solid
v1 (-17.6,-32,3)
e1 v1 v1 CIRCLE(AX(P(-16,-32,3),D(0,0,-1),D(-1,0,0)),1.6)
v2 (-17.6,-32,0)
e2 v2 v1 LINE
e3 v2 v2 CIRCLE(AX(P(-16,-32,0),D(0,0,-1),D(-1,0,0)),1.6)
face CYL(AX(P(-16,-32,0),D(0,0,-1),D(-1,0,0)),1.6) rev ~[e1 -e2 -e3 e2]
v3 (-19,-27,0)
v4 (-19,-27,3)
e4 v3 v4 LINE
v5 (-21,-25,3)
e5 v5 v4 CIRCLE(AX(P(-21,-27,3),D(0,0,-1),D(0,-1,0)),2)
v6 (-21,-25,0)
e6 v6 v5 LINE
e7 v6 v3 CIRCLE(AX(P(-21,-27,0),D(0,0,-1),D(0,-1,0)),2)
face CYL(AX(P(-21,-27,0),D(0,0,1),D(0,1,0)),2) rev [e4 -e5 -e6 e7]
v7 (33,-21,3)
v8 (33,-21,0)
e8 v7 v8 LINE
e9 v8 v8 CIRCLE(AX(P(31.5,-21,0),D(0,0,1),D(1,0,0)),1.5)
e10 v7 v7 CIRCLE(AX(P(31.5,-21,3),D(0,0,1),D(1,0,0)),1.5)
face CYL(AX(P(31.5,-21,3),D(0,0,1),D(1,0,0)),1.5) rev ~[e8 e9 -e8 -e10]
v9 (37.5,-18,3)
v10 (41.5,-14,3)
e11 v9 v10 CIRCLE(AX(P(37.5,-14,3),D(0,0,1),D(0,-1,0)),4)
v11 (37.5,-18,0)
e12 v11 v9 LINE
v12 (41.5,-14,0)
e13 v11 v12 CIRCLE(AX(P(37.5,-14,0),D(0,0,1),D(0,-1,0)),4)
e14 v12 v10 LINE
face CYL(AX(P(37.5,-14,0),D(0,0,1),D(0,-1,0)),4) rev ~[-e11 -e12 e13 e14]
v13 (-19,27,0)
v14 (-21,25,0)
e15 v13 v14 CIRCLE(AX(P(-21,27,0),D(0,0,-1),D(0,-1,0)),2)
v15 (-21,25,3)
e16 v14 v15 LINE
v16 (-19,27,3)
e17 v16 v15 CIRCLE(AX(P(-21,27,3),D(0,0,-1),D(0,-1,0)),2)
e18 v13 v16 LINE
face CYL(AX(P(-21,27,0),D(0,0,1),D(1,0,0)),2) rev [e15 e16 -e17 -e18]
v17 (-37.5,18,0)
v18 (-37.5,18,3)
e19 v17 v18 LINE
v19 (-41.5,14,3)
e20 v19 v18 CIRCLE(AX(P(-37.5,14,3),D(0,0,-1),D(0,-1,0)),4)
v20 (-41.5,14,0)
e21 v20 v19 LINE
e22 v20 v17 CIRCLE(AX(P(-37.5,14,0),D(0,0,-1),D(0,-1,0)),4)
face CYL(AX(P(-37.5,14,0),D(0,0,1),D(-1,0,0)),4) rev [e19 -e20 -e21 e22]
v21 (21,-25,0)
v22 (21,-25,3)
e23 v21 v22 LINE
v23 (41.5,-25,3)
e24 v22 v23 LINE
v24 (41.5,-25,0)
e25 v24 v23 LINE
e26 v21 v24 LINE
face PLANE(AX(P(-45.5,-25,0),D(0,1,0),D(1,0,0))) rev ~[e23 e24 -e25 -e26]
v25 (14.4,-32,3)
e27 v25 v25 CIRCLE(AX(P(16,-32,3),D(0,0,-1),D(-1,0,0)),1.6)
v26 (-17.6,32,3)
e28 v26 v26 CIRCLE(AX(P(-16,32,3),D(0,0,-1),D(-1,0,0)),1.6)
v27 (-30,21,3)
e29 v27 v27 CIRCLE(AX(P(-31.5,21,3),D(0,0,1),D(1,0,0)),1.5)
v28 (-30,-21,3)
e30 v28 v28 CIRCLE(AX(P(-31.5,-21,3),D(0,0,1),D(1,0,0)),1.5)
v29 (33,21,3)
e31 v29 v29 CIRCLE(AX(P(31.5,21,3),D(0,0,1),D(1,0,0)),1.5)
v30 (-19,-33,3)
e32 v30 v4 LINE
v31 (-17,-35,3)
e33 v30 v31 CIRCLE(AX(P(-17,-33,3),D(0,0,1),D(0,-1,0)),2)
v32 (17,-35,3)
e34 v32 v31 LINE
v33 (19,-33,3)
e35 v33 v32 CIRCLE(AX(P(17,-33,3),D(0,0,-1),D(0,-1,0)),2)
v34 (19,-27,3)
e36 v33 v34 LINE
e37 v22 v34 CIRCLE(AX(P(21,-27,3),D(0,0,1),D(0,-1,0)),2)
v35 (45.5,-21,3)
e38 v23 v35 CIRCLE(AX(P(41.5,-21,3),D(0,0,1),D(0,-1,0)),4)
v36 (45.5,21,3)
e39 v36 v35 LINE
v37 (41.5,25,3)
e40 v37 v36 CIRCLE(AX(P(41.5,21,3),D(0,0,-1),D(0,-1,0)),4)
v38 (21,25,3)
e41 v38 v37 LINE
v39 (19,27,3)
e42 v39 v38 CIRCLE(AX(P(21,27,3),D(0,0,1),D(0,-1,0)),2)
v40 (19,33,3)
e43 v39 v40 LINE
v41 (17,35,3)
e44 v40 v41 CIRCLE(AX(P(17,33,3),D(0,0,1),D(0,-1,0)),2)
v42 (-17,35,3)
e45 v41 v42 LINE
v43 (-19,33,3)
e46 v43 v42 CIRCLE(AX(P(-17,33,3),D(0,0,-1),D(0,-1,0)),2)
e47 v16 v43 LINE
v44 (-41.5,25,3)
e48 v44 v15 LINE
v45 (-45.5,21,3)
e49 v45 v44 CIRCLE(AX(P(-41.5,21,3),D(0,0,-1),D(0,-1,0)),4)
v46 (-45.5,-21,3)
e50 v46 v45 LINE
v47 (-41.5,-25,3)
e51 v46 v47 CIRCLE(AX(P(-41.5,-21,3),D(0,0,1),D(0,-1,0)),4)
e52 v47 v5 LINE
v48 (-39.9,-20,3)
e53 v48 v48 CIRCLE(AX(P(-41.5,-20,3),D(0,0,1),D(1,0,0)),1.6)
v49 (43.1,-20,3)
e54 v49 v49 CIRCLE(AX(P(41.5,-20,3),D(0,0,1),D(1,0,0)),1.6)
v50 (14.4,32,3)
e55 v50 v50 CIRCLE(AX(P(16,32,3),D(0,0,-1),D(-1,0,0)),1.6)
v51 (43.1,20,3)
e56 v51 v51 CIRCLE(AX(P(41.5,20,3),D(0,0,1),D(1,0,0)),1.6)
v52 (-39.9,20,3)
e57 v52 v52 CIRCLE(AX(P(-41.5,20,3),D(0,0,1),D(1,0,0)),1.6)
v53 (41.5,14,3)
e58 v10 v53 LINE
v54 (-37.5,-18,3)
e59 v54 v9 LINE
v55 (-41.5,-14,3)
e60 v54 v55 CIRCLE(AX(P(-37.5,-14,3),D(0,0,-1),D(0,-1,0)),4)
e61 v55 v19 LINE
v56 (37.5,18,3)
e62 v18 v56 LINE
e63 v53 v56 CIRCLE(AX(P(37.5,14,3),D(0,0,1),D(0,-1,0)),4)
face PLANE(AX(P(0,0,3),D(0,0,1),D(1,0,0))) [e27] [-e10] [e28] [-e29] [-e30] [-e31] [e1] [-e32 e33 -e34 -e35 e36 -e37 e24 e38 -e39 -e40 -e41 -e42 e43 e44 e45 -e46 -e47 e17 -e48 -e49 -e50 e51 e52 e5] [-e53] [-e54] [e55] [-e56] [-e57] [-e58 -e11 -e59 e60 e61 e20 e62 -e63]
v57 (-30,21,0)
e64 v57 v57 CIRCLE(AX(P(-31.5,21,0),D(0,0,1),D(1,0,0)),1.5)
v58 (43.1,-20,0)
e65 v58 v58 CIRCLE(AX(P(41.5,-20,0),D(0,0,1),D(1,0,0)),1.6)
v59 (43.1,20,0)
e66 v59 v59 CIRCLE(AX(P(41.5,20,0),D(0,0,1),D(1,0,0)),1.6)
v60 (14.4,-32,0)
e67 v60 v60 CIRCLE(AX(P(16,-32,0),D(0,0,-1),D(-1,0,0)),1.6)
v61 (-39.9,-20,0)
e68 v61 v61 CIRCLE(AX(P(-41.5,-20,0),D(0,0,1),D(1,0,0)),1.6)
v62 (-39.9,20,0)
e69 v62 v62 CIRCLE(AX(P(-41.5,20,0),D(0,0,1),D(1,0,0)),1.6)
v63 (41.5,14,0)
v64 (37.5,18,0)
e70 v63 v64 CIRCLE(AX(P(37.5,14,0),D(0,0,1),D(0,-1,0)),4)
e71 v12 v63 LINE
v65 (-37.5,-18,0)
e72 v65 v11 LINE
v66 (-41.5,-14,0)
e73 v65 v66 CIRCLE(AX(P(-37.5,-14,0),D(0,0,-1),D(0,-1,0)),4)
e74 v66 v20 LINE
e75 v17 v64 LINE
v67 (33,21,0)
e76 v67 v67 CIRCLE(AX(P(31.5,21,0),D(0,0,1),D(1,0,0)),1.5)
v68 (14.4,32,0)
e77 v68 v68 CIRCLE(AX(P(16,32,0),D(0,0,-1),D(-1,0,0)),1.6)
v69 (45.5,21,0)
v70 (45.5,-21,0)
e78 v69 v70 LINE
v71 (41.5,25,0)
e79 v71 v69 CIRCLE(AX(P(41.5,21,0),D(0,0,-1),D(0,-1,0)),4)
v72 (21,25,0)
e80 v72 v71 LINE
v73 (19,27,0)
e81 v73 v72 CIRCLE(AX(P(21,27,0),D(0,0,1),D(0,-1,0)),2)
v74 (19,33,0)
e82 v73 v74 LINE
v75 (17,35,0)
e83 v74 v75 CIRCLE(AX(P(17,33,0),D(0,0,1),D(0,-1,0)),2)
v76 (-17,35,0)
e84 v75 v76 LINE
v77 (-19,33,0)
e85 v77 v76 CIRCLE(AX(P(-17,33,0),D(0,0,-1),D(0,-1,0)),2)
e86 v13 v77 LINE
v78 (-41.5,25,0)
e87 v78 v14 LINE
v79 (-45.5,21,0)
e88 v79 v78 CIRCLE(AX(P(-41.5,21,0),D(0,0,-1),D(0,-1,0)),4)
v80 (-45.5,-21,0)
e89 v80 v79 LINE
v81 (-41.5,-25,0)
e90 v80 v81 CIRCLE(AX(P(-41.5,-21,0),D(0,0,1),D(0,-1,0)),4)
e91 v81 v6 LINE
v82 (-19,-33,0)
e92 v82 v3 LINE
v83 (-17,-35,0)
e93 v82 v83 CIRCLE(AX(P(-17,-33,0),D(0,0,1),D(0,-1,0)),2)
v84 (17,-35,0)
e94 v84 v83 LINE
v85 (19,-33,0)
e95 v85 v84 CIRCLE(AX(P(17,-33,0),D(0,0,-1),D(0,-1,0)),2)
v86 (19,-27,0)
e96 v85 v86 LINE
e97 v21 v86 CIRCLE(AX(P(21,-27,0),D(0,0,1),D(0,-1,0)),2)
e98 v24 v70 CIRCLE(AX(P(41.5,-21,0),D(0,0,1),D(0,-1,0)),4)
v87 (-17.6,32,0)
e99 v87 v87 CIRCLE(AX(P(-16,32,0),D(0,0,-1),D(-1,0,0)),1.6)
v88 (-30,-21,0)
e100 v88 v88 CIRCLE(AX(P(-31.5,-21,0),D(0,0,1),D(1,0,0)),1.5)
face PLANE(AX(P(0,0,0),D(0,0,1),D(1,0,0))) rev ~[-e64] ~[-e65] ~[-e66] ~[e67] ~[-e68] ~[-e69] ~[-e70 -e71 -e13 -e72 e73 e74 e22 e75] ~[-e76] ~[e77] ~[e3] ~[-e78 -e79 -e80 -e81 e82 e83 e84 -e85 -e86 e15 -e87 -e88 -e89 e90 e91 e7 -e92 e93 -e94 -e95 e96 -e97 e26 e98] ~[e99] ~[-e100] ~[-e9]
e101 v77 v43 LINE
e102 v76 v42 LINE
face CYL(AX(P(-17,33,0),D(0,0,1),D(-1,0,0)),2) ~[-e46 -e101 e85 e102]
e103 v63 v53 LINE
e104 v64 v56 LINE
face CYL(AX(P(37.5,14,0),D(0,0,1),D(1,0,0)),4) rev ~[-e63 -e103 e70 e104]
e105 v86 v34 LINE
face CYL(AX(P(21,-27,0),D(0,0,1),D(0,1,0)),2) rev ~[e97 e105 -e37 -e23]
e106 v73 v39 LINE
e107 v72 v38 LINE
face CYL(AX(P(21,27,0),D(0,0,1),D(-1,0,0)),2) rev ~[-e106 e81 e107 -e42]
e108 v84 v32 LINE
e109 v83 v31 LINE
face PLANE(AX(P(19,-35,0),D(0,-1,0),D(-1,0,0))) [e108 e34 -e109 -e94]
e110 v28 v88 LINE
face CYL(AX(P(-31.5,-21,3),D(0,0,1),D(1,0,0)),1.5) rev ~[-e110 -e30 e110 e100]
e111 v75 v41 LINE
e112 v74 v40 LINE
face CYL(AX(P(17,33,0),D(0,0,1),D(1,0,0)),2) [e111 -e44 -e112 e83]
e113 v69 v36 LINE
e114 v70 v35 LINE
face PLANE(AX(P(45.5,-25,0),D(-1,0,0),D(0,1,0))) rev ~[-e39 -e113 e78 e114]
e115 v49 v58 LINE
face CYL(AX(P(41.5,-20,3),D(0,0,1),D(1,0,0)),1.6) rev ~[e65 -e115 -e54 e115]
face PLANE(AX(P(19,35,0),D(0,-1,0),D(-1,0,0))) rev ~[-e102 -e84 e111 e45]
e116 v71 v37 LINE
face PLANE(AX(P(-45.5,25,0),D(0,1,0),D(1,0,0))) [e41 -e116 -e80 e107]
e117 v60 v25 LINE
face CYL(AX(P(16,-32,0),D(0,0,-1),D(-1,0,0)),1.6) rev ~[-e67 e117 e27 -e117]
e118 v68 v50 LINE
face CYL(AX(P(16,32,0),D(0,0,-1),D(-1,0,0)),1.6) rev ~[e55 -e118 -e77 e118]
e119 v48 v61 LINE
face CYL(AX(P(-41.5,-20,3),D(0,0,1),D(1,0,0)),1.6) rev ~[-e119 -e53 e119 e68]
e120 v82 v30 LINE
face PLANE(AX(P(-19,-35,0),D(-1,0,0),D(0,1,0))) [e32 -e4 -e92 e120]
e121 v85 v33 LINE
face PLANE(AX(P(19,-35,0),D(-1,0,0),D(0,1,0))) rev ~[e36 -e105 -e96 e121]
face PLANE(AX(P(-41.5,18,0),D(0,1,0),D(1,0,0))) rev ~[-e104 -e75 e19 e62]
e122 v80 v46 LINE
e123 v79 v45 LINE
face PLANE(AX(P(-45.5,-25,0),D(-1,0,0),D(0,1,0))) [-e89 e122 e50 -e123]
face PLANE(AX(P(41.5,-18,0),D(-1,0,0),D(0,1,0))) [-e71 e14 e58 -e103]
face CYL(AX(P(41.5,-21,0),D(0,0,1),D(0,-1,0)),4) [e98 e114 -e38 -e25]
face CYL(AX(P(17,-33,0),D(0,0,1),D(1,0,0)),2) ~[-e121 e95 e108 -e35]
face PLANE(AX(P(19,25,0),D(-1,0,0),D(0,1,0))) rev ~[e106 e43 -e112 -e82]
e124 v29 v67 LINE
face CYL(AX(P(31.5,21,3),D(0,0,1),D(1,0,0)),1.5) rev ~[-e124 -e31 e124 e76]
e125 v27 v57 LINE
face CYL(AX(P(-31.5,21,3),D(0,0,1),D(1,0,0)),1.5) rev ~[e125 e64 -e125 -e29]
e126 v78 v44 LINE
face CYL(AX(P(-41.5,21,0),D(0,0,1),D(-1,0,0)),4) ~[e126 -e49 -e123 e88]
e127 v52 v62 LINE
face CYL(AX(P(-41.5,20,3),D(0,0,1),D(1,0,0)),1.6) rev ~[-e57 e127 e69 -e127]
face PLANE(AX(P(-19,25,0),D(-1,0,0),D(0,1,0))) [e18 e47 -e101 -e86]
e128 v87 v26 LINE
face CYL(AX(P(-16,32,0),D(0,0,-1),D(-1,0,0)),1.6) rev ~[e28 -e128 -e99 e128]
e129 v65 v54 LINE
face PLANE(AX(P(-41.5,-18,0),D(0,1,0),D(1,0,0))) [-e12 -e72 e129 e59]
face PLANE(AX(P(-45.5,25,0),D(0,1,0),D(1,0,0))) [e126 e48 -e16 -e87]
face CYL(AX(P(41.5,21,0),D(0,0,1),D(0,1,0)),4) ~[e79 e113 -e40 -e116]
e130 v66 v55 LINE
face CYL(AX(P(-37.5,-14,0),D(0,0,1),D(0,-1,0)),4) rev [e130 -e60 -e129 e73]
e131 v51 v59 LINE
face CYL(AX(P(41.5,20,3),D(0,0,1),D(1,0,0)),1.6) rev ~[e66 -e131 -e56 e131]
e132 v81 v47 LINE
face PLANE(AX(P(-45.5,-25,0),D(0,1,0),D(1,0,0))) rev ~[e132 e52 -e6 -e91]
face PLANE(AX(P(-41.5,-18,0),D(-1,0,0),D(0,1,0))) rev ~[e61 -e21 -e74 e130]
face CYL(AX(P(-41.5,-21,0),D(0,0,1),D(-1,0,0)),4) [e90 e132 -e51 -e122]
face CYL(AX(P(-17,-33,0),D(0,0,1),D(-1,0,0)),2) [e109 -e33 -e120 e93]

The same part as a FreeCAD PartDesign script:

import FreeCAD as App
import Part
import Sketcher

V = App.Vector
Q = App.Units.Quantity


def edges_at(feature, points):
    """Names of the edges that pass closest to the given points."""
    edges = feature.Shape.Edges
    near = lambda p: min(range(len(edges)), key=lambda i: edges[i].distToShape(Part.Vertex(*p))[0])
    return sorted({f"Edge{near(p) + 1}" for p in points})


def add_polygon(sketch, points):
    """Adds a closed chain of lines whose ends are joined by coincident constraints."""
    first, n = sketch.GeometryCount, len(points)
    for a, b in zip(points, points[1:] + points[:1]):
        sketch.addGeometry(Part.LineSegment(App.Vector(*a, 0), App.Vector(*b, 0)), False)
    for i in range(n):
        sketch.addConstraint(Sketcher.Constraint("Coincident", first + i, 2, first + (i + 1) % n, 1))

doc = App.newDocument("Part")
body = doc.addObject("PartDesign::Body", "Body")

sketch1 = doc.addObject("Sketcher::SketchObject", "Sketch")
body.addObject(sketch1)
sketch1.AttachmentSupport = (doc.XY_Plane, [""])
sketch1.MapMode = "FlatFace"
add_polygon(sketch1, [(-45.5, 25), (-45.5, -25), (45.5, -25), (45.5, 25)])
add_polygon(sketch1, [(41.5, -18), (-41.5, -18), (-41.5, 18), (41.5, 18)])
sketch1.addConstraint(Sketcher.Constraint("Vertical", 0))
sketch1.addConstraint(Sketcher.Constraint("Horizontal", 1))
sketch1.addConstraint(Sketcher.Constraint("Vertical", 2))
sketch1.addConstraint(Sketcher.Constraint("Horizontal", 3))
sketch1.addConstraint(Sketcher.Constraint("Horizontal", 4))
sketch1.addConstraint(Sketcher.Constraint("Vertical", 5))
sketch1.addConstraint(Sketcher.Constraint("Horizontal", 6))
sketch1.addConstraint(Sketcher.Constraint("Vertical", 7))
sketch1.addConstraint(Sketcher.Constraint("Symmetric", 0, 2, 2, 2, -1, 1))
sketch1.addConstraint(Sketcher.Constraint("Symmetric", 4, 2, 6, 2, -1, 1))
sketch1.addConstraint(Sketcher.Constraint("DistanceX", 1, 1, 1, 2, Q("91 mm")))
sketch1.addConstraint(Sketcher.Constraint("DistanceX", 4, 2, 4, 1, Q("83 mm")))
sketch1.addConstraint(Sketcher.Constraint("DistanceY", 0, 2, 0, 1, Q("50 mm")))
sketch1.addConstraint(Sketcher.Constraint("DistanceY", 5, 1, 5, 2, Q("36 mm")))
pad1 = doc.addObject("PartDesign::Pad", "Pad")
body.addObject(pad1)
pad1.Profile = sketch1
pad1.Length = 3

sketch2 = doc.addObject("Sketcher::SketchObject", "Sketch001")
body.addObject(sketch2)
sketch2.AttachmentSupport = (doc.XY_Plane, [""])
sketch2.MapMode = "FlatFace"
sketch2.AttachmentOffset = App.Placement(V(0, 0, 3), App.Rotation())
sketch2.addGeometry(Part.Circle(V(31.5, 21, 0), V(0, 0, 1), 1.5), False)
sketch2.addGeometry(Part.Circle(V(31.5, -21, 0), V(0, 0, 1), 1.5), False)
sketch2.addGeometry(Part.Circle(V(-31.5, -21, 0), V(0, 0, 1), 1.5), False)
sketch2.addGeometry(Part.Circle(V(-31.5, 21, 0), V(0, 0, 1), 1.5), False)
sketch2.addConstraint(Sketcher.Constraint("Equal", 0, 1))
sketch2.addConstraint(Sketcher.Constraint("Equal", 1, 2))
sketch2.addConstraint(Sketcher.Constraint("Equal", 2, 3))
sketch2.addConstraint(Sketcher.Constraint("Symmetric", 0, 3, 2, 3, -1, 1))
sketch2.addConstraint(Sketcher.Constraint("Symmetric", 1, 3, 3, 3, -1, 1))
sketch2.addConstraint(Sketcher.Constraint("Symmetric", 1, 3, 2, 3, -2))
sketch2.addConstraint(Sketcher.Constraint("Diameter", 0, Q("3 mm")))
sketch2.addConstraint(Sketcher.Constraint("DistanceY", -1, 1, 0, 3, Q("21 mm")))
sketch2.addConstraint(Sketcher.Constraint("DistanceX", 2, 3, 1, 3, Q("63 mm")))
pocket1 = doc.addObject("PartDesign::Pocket", "Pocket")
body.addObject(pocket1)
pocket1.Profile = sketch2
pocket1.Length = 3

sketch3 = doc.addObject("Sketcher::SketchObject", "Sketch002")
body.addObject(sketch3)
sketch3.AttachmentSupport = (doc.XY_Plane, [""])
sketch3.MapMode = "FlatFace"
sketch3.AttachmentOffset = App.Placement(V(0, 0, 3), App.Rotation())
sketch3.addGeometry(Part.Circle(V(41.5, 20, 0), V(0, 0, 1), 1.6), False)
sketch3.addGeometry(Part.Circle(V(41.5, -20, 0), V(0, 0, 1), 1.6), False)
sketch3.addGeometry(Part.Circle(V(-41.5, -20, 0), V(0, 0, 1), 1.6), False)
sketch3.addGeometry(Part.Circle(V(-41.5, 20, 0), V(0, 0, 1), 1.6), False)
sketch3.addConstraint(Sketcher.Constraint("Equal", 0, 1))
sketch3.addConstraint(Sketcher.Constraint("Equal", 1, 2))
sketch3.addConstraint(Sketcher.Constraint("Equal", 2, 3))
sketch3.addConstraint(Sketcher.Constraint("Symmetric", 0, 3, 2, 3, -1, 1))
sketch3.addConstraint(Sketcher.Constraint("Symmetric", 1, 3, 3, 3, -1, 1))
sketch3.addConstraint(Sketcher.Constraint("Symmetric", 1, 3, 2, 3, -2))
sketch3.addConstraint(Sketcher.Constraint("Diameter", 0, Q("3.2 mm")))
sketch3.addConstraint(Sketcher.Constraint("DistanceY", -1, 1, 0, 3, Q("20 mm")))
sketch3.addConstraint(Sketcher.Constraint("DistanceX", 2, 3, 1, 3, Q("83 mm")))
pocket2 = doc.addObject("PartDesign::Pocket", "Pocket001")
body.addObject(pocket2)
pocket2.Profile = sketch3
pocket2.Length = 3
doc.recompute()

fillet = doc.addObject("PartDesign::Fillet", "Fillet")
body.addObject(fillet)
fillet.Base = (pocket2, edges_at(pocket2, [
    (41.5, -18, 1.5),
    (41.5, 18, 1.5),
    (-41.5, 18, 1.5),
    (-41.5, -18, 1.5),
    (45.5, -25, 1.5),
    (-45.5, -25, 1.5),
    (-45.5, 25, 1.5),
    (45.5, 25, 1.5),
]))
fillet.Radius = 4

sketch4 = doc.addObject("Sketcher::SketchObject", "Sketch003")
body.addObject(sketch4)
sketch4.AttachmentSupport = (doc.XY_Plane, [""])
sketch4.MapMode = "FlatFace"
add_polygon(sketch4, [(75.5, 17.5), (75.5, -17.5), (45.5, -17.5), (45.5, 17.5)])
sketch4.addConstraint(Sketcher.Constraint("Vertical", 0))
sketch4.addConstraint(Sketcher.Constraint("Horizontal", 1))
sketch4.addConstraint(Sketcher.Constraint("Vertical", 2))
sketch4.addConstraint(Sketcher.Constraint("Horizontal", 3))
sketch4.addConstraint(Sketcher.Constraint("DistanceX", 1, 2, 1, 1, Q("30 mm")))
sketch4.addConstraint(Sketcher.Constraint("DistanceY", 0, 2, 0, 1, Q("35 mm")))
sketch4.addConstraint(Sketcher.Constraint("DistanceX", -1, 1, 0, 2, Q("75.5 mm")))
sketch4.addConstraint(Sketcher.Constraint("DistanceY", 0, 2, -1, 1, Q("17.5 mm")))
pad2 = doc.addObject("PartDesign::Pad", "Pad001")
body.addObject(pad2)
pad2.Profile = sketch4
pad2.Length = 3

sketch5 = doc.addObject("Sketcher::SketchObject", "Sketch004")
body.addObject(sketch5)
sketch5.AttachmentSupport = (doc.XY_Plane, [""])
sketch5.MapMode = "FlatFace"
sketch5.addGeometry(Part.Circle(V(70.5, -12, 0), V(0, 0, 1), 1.25), False)
sketch5.addGeometry(Part.Circle(V(70.5, 12, 0), V(0, 0, 1), 1.25), False)
sketch5.addConstraint(Sketcher.Constraint("Equal", 0, 1))
sketch5.addConstraint(Sketcher.Constraint("Symmetric", 0, 3, 1, 3, -1))
sketch5.addConstraint(Sketcher.Constraint("Diameter", 0, Q("2.5 mm")))
sketch5.addConstraint(Sketcher.Constraint("DistanceY", 0, 3, -1, 1, Q("12 mm")))
sketch5.addConstraint(Sketcher.Constraint("DistanceX", -1, 1, 0, 3, Q("70.5 mm")))
pocket3 = doc.addObject("PartDesign::Pocket", "Pocket002")
body.addObject(pocket3)
pocket3.Profile = sketch5
pocket3.Length = 10
pocket3.Reversed = True
doc.recompute()

fillet2 = doc.addObject("PartDesign::Fillet", "Fillet001")
body.addObject(fillet2)
fillet2.Base = (pocket3, edges_at(pocket3, [
    (45.5, 17.5, 1.5),
    (45.5, -17.5, 1.5),
    (75.5, -17.5, 1.5),
    (75.5, 17.5, 1.5),
]))
fillet2.Radius = 3

sketch6 = doc.addObject("Sketcher::SketchObject", "Sketch005")
body.addObject(sketch6)
sketch6.AttachmentSupport = (doc.XY_Plane, [""])
sketch6.MapMode = "FlatFace"
add_polygon(sketch6, [(66.5, 13.5), (66.5, -13.5), (48.5, -13.5), (48.5, 13.5)])
sketch6.addConstraint(Sketcher.Constraint("Vertical", 0))
sketch6.addConstraint(Sketcher.Constraint("Horizontal", 1))
sketch6.addConstraint(Sketcher.Constraint("Vertical", 2))
sketch6.addConstraint(Sketcher.Constraint("Horizontal", 3))
sketch6.addConstraint(Sketcher.Constraint("DistanceX", 1, 2, 1, 1, Q("18 mm")))
sketch6.addConstraint(Sketcher.Constraint("DistanceY", 0, 2, 0, 1, Q("27 mm")))
sketch6.addConstraint(Sketcher.Constraint("DistanceX", -1, 1, 0, 2, Q("66.5 mm")))
sketch6.addConstraint(Sketcher.Constraint("DistanceY", 0, 2, -1, 1, Q("13.5 mm")))
pocket4 = doc.addObject("PartDesign::Pocket", "Pocket003")
body.addObject(pocket4)
pocket4.Profile = sketch6
pocket4.Length = 10
pocket4.Reversed = True
doc.recompute()

fillet3 = doc.addObject("PartDesign::Fillet", "Fillet002")
body.addObject(fillet3)
fillet3.Base = (pocket4, edges_at(pocket4, [
    (66.5, -13.5, 1.5),
    (66.5, 13.5, 1.5),
    (48.5, 13.5, 1.5),
    (48.5, -13.5, 1.5),
]))
fillet3.Radius = 2

sketch7 = doc.addObject("Sketcher::SketchObject", "Sketch006")
body.addObject(sketch7)
sketch7.AttachmentSupport = (doc.XY_Plane, [""])
sketch7.MapMode = "FlatFace"
add_polygon(sketch7, [(19, 35), (19, 25), (-19, 25), (-19, 35)])
sketch7.addGeometry(Part.Circle(V(16, 32, 0), V(0, 0, 1), 1.6), False)
sketch7.addGeometry(Part.Circle(V(-16, 32, 0), V(0, 0, 1), 1.6), False)
add_polygon(sketch7, [(19, -25), (19, -35), (-19, -35), (-19, -25)])
sketch7.addGeometry(Part.Circle(V(16, -32, 0), V(0, 0, 1), 1.6), False)
sketch7.addGeometry(Part.Circle(V(-16, -32, 0), V(0, 0, 1), 1.6), False)
sketch7.addConstraint(Sketcher.Constraint("Vertical", 0))
sketch7.addConstraint(Sketcher.Constraint("Horizontal", 1))
sketch7.addConstraint(Sketcher.Constraint("Vertical", 2))
sketch7.addConstraint(Sketcher.Constraint("Horizontal", 3))
sketch7.addConstraint(Sketcher.Constraint("Vertical", 6))
sketch7.addConstraint(Sketcher.Constraint("Horizontal", 7))
sketch7.addConstraint(Sketcher.Constraint("Vertical", 8))
sketch7.addConstraint(Sketcher.Constraint("Horizontal", 9))
sketch7.addConstraint(Sketcher.Constraint("Equal", 4, 5))
sketch7.addConstraint(Sketcher.Constraint("Equal", 5, 10))
sketch7.addConstraint(Sketcher.Constraint("Equal", 10, 11))
sketch7.addConstraint(Sketcher.Constraint("Symmetric", 5, 3, 10, 3, -1, 1))
sketch7.addConstraint(Sketcher.Constraint("Symmetric", 4, 3, 11, 3, -1, 1))
sketch7.addConstraint(Sketcher.Constraint("Symmetric", 2, 2, 6, 2, -1, 1))
sketch7.addConstraint(Sketcher.Constraint("Symmetric", 0, 2, 8, 2, -1, 1))
sketch7.addConstraint(Sketcher.Constraint("Symmetric", 4, 3, 5, 3, -2))
sketch7.addConstraint(Sketcher.Constraint("Vertical", 3, 2, 6, 2))
sketch7.addConstraint(Sketcher.Constraint("Diameter", 4, Q("3.2 mm")))
sketch7.addConstraint(Sketcher.Constraint("DistanceX", 1, 2, 1, 1, Q("38 mm")))
sketch7.addConstraint(Sketcher.Constraint("DistanceY", 0, 2, 0, 1, Q("10 mm")))
sketch7.addConstraint(Sketcher.Constraint("DistanceX", -1, 1, 4, 3, Q("16 mm")))
sketch7.addConstraint(Sketcher.Constraint("DistanceY", -1, 1, 4, 3, Q("32 mm")))
sketch7.addConstraint(Sketcher.Constraint("DistanceY", -1, 1, 0, 2, Q("25 mm")))
pad3 = doc.addObject("PartDesign::Pad", "Pad002")
body.addObject(pad3)
pad3.Profile = sketch7
pad3.Length = 3
doc.recompute()

fillet4 = doc.addObject("PartDesign::Fillet", "Fillet003")
body.addObject(fillet4)
fillet4.Base = (pad3, edges_at(pad3, [
    (19, 35, 1.5),
    (-19, 35, 1.5),
    (-19, -35, 1.5),
    (19, -35, 1.5),
]))
fillet4.Radius = 2
doc.recompute()

fillet5 = doc.addObject("PartDesign::Fillet", "Fillet004")
body.addObject(fillet5)
fillet5.Base = (fillet4, edges_at(fillet4, [
    (19, 25, 1.5),
    (-19, 25, 1.5),
    (-19, -25, 1.5),
    (19, -25, 1.5),
]))
fillet5.Radius = 2

sketch8 = doc.addObject("Sketcher::SketchObject", "Sketch007")
body.addObject(sketch8)
sketch8.AttachmentSupport = (doc.XY_Plane, [""])
sketch8.MapMode = "FlatFace"
sketch8.AttachmentOffset = App.Placement(V(0, 0, 3), App.Rotation())
add_polygon(sketch8, [(45.5, 20.5), (45.5, -20.5), (75.5, -20.5), (75.5, 20.5)])
sketch8.addConstraint(Sketcher.Constraint("Vertical", 0))
sketch8.addConstraint(Sketcher.Constraint("Horizontal", 1))
sketch8.addConstraint(Sketcher.Constraint("Vertical", 2))
sketch8.addConstraint(Sketcher.Constraint("Horizontal", 3))
sketch8.addConstraint(Sketcher.Constraint("DistanceX", 1, 1, 1, 2, Q("30 mm")))
sketch8.addConstraint(Sketcher.Constraint("DistanceY", 0, 2, 0, 1, Q("41 mm")))
sketch8.addConstraint(Sketcher.Constraint("DistanceX", -1, 1, 0, 2, Q("45.5 mm")))
sketch8.addConstraint(Sketcher.Constraint("DistanceY", 0, 2, -1, 1, Q("20.5 mm")))
pocket5 = doc.addObject("PartDesign::Pocket", "Pocket004")
body.addObject(pocket5)
pocket5.Profile = sketch8
pocket5.Length = 10

doc.recompute()
